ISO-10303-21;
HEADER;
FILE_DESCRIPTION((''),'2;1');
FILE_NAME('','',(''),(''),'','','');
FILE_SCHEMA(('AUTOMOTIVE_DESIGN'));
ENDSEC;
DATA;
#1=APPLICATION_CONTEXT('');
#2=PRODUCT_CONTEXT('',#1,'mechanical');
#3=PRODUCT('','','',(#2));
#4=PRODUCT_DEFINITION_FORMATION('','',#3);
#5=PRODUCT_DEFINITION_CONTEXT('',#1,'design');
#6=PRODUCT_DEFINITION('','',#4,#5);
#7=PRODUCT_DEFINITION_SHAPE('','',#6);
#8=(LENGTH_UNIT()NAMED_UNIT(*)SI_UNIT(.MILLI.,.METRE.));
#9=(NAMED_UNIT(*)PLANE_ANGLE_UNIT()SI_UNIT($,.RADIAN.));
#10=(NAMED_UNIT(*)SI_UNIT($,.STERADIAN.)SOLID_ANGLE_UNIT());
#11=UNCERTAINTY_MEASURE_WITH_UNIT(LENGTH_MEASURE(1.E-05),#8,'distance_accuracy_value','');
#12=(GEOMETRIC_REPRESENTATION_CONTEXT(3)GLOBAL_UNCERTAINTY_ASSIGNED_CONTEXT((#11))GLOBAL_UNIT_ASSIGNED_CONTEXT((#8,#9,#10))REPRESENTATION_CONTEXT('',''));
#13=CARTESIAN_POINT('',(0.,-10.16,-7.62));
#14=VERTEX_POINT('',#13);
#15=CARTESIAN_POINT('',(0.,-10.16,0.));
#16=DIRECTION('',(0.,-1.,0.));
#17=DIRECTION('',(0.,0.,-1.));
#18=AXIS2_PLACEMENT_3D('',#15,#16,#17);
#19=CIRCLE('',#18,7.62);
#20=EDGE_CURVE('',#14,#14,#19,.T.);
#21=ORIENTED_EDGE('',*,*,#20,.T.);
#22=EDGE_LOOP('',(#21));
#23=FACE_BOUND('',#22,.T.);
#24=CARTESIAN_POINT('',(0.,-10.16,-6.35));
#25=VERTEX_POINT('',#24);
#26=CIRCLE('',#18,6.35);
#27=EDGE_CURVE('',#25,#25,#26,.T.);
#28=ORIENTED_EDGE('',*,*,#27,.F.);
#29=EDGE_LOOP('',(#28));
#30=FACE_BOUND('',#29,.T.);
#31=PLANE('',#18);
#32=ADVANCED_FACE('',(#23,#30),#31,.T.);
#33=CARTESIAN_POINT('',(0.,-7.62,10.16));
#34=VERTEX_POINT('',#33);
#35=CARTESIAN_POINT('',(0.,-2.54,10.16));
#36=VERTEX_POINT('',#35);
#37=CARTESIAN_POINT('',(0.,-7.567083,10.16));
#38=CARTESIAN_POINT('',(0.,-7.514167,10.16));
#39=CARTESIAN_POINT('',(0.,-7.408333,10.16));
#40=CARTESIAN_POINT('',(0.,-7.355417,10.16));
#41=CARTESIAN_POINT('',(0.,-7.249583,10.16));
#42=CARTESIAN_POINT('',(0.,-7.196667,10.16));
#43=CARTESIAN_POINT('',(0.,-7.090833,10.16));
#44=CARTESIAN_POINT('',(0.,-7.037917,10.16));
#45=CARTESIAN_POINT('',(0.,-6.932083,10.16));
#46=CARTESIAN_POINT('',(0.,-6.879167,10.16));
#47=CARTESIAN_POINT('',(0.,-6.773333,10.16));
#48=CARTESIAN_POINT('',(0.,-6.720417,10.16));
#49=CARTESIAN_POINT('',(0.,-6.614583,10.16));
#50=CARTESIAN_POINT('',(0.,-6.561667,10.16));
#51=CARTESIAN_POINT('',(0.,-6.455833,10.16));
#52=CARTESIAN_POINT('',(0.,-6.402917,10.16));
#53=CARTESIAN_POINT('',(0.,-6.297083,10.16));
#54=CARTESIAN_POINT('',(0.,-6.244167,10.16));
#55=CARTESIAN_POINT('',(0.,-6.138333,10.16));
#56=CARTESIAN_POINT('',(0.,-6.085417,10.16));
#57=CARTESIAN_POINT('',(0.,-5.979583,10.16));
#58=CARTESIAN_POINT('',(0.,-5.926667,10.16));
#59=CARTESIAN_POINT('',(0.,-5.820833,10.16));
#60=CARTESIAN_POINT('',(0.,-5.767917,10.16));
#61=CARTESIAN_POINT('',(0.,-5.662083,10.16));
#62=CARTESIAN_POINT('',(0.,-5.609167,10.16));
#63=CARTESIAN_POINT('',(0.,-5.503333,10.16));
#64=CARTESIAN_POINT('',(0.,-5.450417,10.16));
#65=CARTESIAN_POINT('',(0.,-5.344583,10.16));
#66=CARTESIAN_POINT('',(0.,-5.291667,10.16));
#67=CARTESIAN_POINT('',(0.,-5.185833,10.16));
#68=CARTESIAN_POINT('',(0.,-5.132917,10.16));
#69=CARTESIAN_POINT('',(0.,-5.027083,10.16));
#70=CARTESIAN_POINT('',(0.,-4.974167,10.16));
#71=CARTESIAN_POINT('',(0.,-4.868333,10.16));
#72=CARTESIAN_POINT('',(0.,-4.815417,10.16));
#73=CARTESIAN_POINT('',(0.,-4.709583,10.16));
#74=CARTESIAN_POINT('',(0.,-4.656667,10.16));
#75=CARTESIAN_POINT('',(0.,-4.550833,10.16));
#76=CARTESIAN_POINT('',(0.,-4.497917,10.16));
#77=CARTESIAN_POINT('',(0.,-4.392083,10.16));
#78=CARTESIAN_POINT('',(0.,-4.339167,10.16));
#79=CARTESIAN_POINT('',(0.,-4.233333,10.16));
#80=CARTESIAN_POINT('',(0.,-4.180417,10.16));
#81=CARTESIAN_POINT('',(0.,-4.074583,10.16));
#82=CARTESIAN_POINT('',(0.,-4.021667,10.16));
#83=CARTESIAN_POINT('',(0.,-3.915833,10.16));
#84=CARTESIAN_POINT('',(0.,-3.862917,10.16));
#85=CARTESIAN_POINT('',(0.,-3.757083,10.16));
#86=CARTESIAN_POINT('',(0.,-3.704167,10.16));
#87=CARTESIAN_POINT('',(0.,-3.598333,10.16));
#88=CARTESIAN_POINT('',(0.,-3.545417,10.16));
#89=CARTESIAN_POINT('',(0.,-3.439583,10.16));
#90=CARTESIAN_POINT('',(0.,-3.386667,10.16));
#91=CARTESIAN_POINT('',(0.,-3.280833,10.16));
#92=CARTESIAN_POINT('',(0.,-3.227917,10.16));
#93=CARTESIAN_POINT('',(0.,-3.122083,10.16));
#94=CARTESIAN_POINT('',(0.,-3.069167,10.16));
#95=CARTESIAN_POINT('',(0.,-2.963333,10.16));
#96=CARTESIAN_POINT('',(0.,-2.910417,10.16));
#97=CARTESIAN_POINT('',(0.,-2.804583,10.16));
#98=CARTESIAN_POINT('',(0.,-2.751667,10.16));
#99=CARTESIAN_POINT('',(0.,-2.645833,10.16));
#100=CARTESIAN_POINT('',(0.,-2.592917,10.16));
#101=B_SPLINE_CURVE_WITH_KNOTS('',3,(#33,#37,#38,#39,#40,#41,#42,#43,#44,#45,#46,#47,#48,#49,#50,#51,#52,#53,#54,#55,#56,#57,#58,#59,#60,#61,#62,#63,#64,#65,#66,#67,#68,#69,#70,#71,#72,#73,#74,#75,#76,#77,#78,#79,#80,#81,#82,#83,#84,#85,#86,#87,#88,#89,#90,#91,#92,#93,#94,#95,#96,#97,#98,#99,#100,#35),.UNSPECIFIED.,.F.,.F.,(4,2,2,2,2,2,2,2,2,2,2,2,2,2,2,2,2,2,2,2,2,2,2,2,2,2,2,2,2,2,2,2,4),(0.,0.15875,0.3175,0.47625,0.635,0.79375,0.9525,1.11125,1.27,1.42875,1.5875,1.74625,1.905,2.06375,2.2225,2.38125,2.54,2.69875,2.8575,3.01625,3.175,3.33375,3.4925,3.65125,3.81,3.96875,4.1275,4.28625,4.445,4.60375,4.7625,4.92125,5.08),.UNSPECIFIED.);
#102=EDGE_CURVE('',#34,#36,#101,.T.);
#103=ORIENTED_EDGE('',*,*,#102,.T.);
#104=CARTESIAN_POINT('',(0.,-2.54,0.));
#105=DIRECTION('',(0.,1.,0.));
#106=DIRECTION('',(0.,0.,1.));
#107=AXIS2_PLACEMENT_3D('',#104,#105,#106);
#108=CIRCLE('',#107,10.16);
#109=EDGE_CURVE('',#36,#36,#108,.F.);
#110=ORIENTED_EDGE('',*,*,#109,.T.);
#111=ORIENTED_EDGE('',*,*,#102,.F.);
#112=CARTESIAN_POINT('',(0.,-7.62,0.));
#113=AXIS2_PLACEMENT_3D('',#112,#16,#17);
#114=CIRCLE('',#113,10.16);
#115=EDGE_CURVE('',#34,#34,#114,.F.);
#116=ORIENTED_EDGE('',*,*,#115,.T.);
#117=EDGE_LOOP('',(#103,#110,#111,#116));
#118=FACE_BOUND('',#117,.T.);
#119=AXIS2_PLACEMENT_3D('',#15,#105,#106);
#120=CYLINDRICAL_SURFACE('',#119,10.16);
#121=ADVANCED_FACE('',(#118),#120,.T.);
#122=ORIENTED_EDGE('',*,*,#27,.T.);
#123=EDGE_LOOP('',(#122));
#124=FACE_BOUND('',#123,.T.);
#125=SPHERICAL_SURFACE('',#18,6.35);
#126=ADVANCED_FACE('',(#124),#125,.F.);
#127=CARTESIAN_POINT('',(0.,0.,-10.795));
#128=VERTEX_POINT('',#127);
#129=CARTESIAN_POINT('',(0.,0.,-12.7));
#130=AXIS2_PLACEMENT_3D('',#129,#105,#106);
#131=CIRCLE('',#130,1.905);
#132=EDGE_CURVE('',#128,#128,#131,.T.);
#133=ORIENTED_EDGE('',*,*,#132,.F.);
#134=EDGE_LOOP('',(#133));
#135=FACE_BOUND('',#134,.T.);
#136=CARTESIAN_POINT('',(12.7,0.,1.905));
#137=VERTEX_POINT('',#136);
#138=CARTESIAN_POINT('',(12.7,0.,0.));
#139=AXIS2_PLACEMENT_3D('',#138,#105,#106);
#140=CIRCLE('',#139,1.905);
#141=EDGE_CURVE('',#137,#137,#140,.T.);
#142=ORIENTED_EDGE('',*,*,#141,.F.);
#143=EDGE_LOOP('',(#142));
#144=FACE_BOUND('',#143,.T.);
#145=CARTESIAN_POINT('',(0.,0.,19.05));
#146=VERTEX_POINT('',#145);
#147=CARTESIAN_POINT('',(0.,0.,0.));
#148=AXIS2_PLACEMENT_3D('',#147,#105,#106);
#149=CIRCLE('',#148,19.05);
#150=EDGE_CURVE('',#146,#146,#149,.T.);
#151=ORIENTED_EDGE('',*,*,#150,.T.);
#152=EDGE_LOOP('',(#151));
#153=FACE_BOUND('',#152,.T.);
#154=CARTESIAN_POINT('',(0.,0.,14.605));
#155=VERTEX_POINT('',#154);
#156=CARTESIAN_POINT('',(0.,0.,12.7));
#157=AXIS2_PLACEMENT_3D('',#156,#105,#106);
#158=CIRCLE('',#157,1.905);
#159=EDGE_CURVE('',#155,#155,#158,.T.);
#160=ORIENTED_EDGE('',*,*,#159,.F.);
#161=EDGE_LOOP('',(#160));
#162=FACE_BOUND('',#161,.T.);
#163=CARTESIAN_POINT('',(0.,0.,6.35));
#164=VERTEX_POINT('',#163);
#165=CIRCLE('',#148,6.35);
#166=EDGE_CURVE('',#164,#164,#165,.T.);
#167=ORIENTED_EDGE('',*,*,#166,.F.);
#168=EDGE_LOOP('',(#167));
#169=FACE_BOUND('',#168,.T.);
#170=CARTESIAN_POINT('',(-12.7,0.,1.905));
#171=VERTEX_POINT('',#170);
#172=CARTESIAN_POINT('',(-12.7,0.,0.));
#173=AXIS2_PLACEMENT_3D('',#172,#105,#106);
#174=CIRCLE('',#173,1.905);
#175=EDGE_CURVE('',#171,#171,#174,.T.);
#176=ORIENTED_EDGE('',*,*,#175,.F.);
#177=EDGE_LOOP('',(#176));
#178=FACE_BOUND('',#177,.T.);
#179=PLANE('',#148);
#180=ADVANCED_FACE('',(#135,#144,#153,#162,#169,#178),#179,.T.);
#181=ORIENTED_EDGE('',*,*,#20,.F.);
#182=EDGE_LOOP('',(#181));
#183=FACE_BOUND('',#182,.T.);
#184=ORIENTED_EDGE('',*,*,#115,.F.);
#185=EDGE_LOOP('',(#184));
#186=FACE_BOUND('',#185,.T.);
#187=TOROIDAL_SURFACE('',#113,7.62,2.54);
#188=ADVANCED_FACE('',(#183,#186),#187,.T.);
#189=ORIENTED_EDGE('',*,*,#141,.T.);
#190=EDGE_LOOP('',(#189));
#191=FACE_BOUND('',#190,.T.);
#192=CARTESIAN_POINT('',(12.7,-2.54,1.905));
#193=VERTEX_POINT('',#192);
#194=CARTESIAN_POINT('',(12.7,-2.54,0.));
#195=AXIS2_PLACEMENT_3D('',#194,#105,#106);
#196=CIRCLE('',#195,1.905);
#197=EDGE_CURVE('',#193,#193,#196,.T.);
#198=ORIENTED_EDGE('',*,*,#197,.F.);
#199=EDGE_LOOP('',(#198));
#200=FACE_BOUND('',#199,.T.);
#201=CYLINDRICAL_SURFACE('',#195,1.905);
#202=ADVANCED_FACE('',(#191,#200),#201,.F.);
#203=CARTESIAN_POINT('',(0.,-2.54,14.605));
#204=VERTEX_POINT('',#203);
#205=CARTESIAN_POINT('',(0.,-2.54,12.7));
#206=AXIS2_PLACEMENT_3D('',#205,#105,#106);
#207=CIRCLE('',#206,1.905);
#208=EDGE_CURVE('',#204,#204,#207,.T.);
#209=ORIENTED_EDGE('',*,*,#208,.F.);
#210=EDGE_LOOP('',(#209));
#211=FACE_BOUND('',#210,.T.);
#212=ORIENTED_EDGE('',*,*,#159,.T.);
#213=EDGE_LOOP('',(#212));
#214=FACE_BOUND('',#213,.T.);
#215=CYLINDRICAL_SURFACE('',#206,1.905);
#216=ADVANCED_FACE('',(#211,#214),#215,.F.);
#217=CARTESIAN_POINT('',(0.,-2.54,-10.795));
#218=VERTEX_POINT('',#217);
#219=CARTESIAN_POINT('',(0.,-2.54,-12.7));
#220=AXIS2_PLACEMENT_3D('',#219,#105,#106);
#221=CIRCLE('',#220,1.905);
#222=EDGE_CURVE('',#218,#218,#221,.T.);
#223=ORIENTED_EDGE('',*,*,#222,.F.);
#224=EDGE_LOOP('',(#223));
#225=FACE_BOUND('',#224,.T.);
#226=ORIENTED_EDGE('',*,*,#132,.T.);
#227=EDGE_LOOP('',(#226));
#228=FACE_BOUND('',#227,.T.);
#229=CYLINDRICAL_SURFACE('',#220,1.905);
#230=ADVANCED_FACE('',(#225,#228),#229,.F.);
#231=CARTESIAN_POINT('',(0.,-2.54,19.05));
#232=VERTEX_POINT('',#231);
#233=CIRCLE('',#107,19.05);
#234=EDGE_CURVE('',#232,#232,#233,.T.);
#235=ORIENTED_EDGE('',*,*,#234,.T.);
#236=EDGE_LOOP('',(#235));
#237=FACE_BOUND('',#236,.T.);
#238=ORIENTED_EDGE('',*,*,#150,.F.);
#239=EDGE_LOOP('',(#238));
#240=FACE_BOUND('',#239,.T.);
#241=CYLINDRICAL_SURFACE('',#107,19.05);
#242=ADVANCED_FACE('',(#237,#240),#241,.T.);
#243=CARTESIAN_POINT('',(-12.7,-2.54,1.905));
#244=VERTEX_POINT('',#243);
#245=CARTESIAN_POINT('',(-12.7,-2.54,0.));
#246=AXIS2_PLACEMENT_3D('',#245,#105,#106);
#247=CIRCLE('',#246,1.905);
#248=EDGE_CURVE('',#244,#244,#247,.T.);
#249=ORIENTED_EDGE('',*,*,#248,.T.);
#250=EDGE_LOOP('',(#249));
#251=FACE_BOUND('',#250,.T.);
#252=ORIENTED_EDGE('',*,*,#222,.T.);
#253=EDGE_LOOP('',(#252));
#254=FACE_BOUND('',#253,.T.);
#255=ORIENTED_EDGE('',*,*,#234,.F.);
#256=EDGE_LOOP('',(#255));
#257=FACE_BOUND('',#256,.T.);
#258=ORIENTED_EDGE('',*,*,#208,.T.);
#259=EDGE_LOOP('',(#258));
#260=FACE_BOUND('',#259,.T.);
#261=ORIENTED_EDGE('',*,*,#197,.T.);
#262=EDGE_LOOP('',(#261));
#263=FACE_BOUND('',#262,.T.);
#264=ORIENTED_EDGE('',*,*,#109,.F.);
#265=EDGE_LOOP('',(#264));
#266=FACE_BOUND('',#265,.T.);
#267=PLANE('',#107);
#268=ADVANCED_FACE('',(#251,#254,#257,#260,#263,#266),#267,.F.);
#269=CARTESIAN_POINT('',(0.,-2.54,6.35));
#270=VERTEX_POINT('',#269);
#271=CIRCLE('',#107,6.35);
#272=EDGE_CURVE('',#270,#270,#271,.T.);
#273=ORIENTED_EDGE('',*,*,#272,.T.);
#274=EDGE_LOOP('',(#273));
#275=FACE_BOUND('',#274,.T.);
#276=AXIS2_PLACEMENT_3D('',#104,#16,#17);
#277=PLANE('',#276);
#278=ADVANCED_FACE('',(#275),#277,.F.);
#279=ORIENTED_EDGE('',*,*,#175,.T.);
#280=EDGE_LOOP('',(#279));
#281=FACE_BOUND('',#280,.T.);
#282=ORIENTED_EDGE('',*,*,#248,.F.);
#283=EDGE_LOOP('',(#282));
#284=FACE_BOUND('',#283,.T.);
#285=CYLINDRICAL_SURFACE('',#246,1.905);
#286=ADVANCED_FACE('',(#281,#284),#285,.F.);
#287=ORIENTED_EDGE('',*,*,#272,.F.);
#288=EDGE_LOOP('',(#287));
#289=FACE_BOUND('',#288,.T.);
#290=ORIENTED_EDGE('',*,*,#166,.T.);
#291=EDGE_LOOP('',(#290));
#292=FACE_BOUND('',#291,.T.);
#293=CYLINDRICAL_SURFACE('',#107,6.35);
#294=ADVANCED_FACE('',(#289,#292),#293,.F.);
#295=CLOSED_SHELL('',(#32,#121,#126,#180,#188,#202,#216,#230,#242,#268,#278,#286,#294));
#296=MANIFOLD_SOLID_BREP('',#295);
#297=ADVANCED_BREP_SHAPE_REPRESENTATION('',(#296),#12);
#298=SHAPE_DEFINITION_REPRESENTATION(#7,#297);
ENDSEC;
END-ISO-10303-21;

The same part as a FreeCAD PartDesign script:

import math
import FreeCAD as App
import Part
import Sketcher
from FreeCAD import Vector
Q = App.Units.Quantity


def edges_at(feature, points):
    """Names of the edges that pass closest to the given points."""
    edges = feature.Shape.Edges
    near = lambda p: min(range(len(edges)), key=lambda i: edges[i].distToShape(Part.Vertex(*p))[0])
    return sorted({f"Edge{near(p) + 1}" for p in points})

doc = App.newDocument("Part")
body = doc.addObject("PartDesign::Body", "Body")

# Sketch on XZ plane
sketch1 = doc.addObject("Sketcher::SketchObject", "Sketch")
body.addObject(sketch1)
sketch1.AttachmentSupport = (doc.XZ_Plane, [""])
sketch1.MapMode = "FlatFace"
sketch1.addGeometry([
    Part.Circle(Vector(0, 0, 0), Vector(0, 0, 1), 19.1),  # 0
    Part.Circle(Vector(0, -12.7, 0), Vector(0, 0, 1), 1.9),  # 1
    Part.Circle(Vector(-12.7, 0, 0), Vector(0, 0, 1), 1.9),  # 2
    Part.Circle(Vector(12.7, 0, 0), Vector(0, 0, 1), 1.9),  # 3
    Part.Circle(Vector(0, 0, 0), Vector(0, 0, 1), 6.3),  # 4
    Part.Circle(Vector(0, 12.7, 0), Vector(0, 0, 1), 1.9),  # 5
], False)
sketch1.addConstraint([
    Sketcher.Constraint("Coincident", 0, 3, -1, 1),
    Sketcher.Constraint("Coincident", 4, 3, -1, 1),
    Sketcher.Constraint("Equal", 1, 2),
    Sketcher.Constraint("Equal", 2, 3),
    Sketcher.Constraint("Equal", 3, 5),
    Sketcher.Constraint("Symmetric", 2, 3, 3, 3, -1, 1),
    Sketcher.Constraint("Symmetric", 1, 3, 5, 3, -1, 1),
    Sketcher.Constraint("PointOnObject", 1, 3, -2),
    Sketcher.Constraint("PointOnObject", 2, 3, -1),
    Sketcher.Constraint("Diameter", 0, Q("1.5 in")),
    Sketcher.Constraint("Diameter", 4, Q("0.5 in")),
    Sketcher.Constraint("Diameter", 1, Q("0.15 in")),
    Sketcher.Constraint("DistanceX", 2, 3, 3, 3, Q("1 in")),
    Sketcher.Constraint("DistanceY", 1, 3, 5, 3, Q("1 in")),
])
pad1 = doc.addObject("PartDesign::Pad", "Pad")
body.addObject(pad1)
pad1.Profile = sketch1
pad1.Length = Q("0.1 in")

# Sketch on XZ plane
sketch2 = doc.addObject("Sketcher::SketchObject", "Sketch001")
body.addObject(sketch2)
sketch2.AttachmentSupport = (doc.XZ_Plane, [""])
sketch2.MapMode = "FlatFace"
sketch2.AttachmentOffset = App.Placement(Vector(0, 0, 0.1 * 25.4), App.Rotation())
sketch2.addGeometry(Part.Circle(Vector(0, 0, 0), Vector(0, 0, 1), 10), False)
sketch2.addConstraint([
    Sketcher.Constraint("Coincident", 0, 3, -1, 1),
    Sketcher.Constraint("Diameter", 0, Q("0.8 in")),
])
pad2 = doc.addObject("PartDesign::Pad", "Pad001")
body.addObject(pad2)
pad2.Profile = sketch2
pad2.Length = Q("0.3 in")
doc.recompute()

fillet = doc.addObject("PartDesign::Fillet", "Fillet")
body.addObject(fillet)
fillet.Base = (pad2, edges_at(pad2, [(0, -10.16, -10.16)]))
fillet.Radius = Q("0.1 in")
body2 = doc.addObject("PartDesign::Body", "Body001")

# Sketch on XZ plane
sketch3 = doc.addObject("Sketcher::SketchObject", "Sketch002")
body2.addObject(sketch3)
sketch3.AttachmentSupport = (doc.getObject("XZ_Plane001"), [""])
sketch3.MapMode = "FlatFace"
sketch3.AttachmentOffset = App.Placement(Vector(0, 0, 0.4 * 25.4), App.Rotation())
sketch3.addGeometry([
    Part.LineSegment(Vector(0, 6, 0), Vector(0, -6, 0)),
    Part.ArcOfCircle(Part.Circle(Vector(0, 0, 0), Vector(0, 0, 1), 6), math.radians(-90), math.radians(90)),
], False)
sketch3.addConstraint([
    Sketcher.Constraint("Coincident", 0, 1, 1, 2),
    Sketcher.Constraint("Coincident", 1, 1, 0, 2),
    Sketcher.Constraint("Vertical", 0),
    Sketcher.Constraint("Coincident", 1, 3, -1, 1),
    Sketcher.Constraint("PointOnObject", 0, 1, -2),
    Sketcher.Constraint("Radius", 1, Q("0.25 in")),
])
revolution = doc.addObject("PartDesign::Revolution", "Revolution")
body2.addObject(revolution)
revolution.Profile = sketch3
revolution.ReferenceAxis = (sketch3, ["V_Axis"])
revolution.Angle = 360
doc.recompute()

boolean = doc.addObject("PartDesign::Boolean", "Boolean")
body.addObject(boolean)
boolean.Type = "Cut"
boolean.addObjects([body2])

doc.recompute()
